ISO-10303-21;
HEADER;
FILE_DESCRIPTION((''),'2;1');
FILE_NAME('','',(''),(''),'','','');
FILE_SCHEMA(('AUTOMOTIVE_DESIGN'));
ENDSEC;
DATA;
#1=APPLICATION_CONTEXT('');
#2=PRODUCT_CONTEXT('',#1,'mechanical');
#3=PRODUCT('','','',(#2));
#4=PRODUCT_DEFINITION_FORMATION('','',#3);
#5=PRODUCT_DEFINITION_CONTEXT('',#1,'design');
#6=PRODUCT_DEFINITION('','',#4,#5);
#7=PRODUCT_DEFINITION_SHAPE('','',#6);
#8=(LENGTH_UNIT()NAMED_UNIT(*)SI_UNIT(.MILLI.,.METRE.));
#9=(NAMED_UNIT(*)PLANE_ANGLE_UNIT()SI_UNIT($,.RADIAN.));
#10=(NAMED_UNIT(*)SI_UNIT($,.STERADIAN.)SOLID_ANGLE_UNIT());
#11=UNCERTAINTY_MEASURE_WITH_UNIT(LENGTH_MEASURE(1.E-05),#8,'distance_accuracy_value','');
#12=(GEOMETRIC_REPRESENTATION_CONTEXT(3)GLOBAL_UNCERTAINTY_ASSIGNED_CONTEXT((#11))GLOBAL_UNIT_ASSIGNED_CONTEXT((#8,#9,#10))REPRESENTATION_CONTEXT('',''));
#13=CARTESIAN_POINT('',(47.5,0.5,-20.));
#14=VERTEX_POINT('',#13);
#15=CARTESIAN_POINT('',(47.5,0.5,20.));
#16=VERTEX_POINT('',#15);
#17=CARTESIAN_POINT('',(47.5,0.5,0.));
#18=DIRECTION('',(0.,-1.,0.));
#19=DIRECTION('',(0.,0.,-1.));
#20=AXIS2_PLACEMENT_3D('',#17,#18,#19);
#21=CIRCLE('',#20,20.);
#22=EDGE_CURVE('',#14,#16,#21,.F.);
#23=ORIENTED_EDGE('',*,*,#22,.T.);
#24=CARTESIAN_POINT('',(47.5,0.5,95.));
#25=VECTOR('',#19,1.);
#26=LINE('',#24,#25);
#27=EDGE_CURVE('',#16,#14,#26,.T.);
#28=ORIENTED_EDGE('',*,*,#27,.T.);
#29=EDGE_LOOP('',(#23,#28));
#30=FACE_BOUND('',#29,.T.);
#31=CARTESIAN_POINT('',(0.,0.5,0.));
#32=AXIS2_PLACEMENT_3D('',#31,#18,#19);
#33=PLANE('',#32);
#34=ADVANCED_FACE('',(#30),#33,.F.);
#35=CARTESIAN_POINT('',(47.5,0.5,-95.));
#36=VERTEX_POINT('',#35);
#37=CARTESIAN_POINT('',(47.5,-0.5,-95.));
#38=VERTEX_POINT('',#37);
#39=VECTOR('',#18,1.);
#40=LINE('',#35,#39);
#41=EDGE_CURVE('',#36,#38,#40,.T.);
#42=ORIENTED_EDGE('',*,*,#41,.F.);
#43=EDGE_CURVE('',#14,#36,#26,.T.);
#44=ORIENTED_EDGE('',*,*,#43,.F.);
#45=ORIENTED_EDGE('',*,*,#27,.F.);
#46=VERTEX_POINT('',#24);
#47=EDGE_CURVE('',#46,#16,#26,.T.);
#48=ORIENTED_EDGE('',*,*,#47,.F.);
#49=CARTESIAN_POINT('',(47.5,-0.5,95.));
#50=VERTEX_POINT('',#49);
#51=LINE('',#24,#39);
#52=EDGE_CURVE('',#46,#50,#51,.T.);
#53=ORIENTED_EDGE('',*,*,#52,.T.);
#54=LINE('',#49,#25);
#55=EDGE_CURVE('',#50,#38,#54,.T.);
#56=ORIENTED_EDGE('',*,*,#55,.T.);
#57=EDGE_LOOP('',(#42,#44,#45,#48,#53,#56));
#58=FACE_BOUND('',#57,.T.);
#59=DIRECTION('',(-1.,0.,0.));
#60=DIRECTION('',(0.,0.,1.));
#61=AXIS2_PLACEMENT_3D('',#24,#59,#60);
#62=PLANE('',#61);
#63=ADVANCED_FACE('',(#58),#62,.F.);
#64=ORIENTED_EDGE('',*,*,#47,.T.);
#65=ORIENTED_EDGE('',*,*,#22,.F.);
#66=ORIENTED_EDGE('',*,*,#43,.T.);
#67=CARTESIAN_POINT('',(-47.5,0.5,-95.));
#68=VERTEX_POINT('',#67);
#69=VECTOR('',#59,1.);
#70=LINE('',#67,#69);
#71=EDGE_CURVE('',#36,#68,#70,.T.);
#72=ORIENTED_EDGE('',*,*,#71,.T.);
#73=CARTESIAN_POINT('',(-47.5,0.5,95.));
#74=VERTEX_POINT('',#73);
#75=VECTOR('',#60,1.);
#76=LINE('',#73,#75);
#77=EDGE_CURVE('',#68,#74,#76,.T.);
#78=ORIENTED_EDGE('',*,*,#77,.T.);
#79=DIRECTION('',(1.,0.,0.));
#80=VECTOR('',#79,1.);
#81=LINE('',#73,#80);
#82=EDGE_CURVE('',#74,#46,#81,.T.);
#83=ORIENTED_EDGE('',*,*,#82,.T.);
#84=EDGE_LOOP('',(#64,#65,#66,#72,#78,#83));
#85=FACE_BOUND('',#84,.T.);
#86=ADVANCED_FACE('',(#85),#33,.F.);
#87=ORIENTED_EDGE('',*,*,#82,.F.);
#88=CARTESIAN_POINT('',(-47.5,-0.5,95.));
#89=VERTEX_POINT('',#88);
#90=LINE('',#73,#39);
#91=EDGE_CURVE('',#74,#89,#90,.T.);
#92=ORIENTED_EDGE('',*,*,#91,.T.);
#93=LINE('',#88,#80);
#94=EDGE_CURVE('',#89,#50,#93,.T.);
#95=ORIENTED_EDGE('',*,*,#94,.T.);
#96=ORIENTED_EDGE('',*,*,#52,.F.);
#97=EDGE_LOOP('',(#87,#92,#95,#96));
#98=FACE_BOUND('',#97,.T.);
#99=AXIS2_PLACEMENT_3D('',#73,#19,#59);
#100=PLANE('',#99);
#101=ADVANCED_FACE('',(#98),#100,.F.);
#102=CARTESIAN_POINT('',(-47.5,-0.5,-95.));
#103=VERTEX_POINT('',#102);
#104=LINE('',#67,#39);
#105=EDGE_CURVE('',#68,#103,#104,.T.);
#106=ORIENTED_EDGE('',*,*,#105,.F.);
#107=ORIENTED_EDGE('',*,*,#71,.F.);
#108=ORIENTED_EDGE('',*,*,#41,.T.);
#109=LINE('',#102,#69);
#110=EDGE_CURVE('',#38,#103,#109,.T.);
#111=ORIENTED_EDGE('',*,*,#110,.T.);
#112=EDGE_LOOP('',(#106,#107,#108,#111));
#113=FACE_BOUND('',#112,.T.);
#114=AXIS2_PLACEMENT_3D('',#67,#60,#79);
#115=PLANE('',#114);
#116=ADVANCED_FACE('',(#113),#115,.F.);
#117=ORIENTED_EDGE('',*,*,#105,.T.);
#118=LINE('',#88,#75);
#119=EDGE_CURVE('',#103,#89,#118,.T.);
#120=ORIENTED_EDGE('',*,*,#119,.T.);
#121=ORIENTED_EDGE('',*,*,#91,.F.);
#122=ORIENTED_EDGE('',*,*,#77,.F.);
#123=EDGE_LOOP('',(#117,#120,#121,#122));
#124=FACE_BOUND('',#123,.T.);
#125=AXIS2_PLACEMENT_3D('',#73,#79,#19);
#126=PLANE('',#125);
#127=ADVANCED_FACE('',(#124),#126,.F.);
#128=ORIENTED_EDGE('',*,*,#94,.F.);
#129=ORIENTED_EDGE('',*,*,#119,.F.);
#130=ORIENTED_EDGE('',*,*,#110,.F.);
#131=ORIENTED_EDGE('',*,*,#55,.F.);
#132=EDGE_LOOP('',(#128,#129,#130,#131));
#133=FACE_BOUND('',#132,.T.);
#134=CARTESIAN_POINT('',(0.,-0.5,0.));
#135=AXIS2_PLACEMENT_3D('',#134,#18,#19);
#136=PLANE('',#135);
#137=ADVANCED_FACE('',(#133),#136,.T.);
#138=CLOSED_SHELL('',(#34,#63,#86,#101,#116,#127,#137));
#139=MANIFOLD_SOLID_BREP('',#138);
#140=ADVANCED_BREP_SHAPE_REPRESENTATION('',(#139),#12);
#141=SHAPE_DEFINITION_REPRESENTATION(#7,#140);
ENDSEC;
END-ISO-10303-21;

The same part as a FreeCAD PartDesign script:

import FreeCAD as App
import Part
import Sketcher
from FreeCAD import Vector
Q = App.Units.Quantity

doc = App.newDocument("Part")
params = doc.addObject("Spreadsheet::Sheet", "Params")
for row, (alias, value) in enumerate([
    ("sketch1_width", "95 mm"),
    ("sketch1_height", "190 mm"),
    ("pad1_length", "1 mm"),
], start=1):
    params.set(f"A{row}", alias)
    params.set(f"B{row}", "=" + value)
    params.setAlias(f"B{row}", alias)

body = doc.addObject("PartDesign::Body", "Body")

# Sketch on XZ plane
sketch1 = doc.addObject("Sketcher::SketchObject", "Sketch")
body.addObject(sketch1)
sketch1.AttachmentSupport = (doc.XZ_Plane, [""])
sketch1.MapMode = "FlatFace"
sketch1.addGeometry([
    Part.LineSegment(Vector(-47, -95, 0), Vector(-47, 95, 0)),
    Part.LineSegment(Vector(-47, 95, 0), Vector(47, 95, 0)),
    Part.LineSegment(Vector(47, 95, 0), Vector(47, -95, 0)),
    Part.LineSegment(Vector(47, -95, 0), Vector(-47, -95, 0)),
], False)
sketch1.addConstraint([
    Sketcher.Constraint("Coincident", 0, 2, 1, 1),
    Sketcher.Constraint("Coincident", 1, 2, 2, 1),
    Sketcher.Constraint("Coincident", 2, 2, 3, 1),
    Sketcher.Constraint("Coincident", 3, 2, 0, 1),
    Sketcher.Constraint("Vertical", 0),
    Sketcher.Constraint("Horizontal", 1),
    Sketcher.Constraint("Vertical", 2),
    Sketcher.Constraint("Horizontal", 3),
    Sketcher.Constraint("Symmetric", 0, 2, 2, 2, -1, 1),
    Sketcher.Constraint("DistanceX", 1, 1, 1, 2, Q("95 mm")),
    Sketcher.Constraint("DistanceY", 0, 1, 0, 2, Q("190 mm")),
])
sketch1.setExpression("Constraints[9]", "Params.sketch1_width")
sketch1.setExpression("Constraints[10]", "Params.sketch1_height")
pad1 = doc.addObject("PartDesign::Pad", "Pad")
body.addObject(pad1)
pad1.Profile = sketch1
pad1.setExpression("Length", "Params.pad1_length")
pad1.Midplane = True

doc.recompute()
